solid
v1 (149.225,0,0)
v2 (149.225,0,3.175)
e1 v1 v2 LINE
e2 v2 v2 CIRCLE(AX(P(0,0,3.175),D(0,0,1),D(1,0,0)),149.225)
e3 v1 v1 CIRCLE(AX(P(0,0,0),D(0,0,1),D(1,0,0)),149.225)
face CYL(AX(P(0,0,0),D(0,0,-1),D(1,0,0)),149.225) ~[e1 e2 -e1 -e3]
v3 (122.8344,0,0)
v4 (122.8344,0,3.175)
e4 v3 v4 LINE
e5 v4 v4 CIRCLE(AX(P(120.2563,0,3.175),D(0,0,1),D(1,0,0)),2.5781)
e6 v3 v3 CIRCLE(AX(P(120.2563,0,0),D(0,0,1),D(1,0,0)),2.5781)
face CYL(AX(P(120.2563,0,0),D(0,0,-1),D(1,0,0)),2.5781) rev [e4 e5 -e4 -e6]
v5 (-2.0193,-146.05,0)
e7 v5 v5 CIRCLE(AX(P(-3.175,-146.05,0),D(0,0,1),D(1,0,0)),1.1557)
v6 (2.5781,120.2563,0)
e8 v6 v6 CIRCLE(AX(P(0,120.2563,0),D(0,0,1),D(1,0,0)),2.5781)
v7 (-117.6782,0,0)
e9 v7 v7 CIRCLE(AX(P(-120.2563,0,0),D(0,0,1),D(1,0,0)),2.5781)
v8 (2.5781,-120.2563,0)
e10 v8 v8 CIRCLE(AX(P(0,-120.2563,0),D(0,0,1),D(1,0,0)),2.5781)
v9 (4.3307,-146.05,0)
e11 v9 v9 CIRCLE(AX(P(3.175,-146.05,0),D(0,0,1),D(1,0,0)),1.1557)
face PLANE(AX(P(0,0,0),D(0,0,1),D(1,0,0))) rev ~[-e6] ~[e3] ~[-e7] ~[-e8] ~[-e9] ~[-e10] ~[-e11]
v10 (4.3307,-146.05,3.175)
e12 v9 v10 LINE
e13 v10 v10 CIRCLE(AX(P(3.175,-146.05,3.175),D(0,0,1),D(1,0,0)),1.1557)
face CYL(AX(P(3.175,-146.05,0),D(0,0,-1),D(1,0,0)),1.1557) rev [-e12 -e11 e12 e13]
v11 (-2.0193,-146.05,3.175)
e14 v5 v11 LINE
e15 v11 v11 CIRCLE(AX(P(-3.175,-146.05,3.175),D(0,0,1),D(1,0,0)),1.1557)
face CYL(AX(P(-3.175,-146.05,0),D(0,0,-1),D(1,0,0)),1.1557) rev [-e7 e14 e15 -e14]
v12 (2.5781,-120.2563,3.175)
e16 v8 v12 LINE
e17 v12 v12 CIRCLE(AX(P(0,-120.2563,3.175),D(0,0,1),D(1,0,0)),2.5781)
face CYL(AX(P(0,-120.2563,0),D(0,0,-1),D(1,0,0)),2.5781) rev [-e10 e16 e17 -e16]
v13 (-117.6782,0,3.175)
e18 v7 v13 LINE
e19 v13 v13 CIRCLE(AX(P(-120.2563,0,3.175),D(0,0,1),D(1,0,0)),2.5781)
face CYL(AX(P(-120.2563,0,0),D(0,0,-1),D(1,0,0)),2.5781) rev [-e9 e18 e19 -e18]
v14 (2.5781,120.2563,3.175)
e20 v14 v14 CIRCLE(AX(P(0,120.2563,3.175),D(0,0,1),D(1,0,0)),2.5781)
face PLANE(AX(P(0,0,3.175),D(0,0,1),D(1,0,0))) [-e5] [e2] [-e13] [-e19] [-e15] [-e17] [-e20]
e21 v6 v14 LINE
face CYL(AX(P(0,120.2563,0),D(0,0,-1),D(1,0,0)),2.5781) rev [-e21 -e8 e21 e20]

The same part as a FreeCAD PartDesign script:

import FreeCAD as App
import Part
import Sketcher
Q = App.Units.Quantity

doc = App.newDocument("Part")
params = doc.addObject("Spreadsheet::Sheet", "Params")
for row, (alias, value) in enumerate([
    ("sketch1_diameter", "11.75 in"),
    ("sketch1_diameter2", "0.203 in"),
    ("pad1_length", "0.125 in"),
    ("sketch2_diameter", "0.091 in"),
    ("pocket1_length", "0.125 in"),
], start=1):
    params.set(f"A{row}", alias)
    params.set(f"B{row}", "=" + value)
    params.setAlias(f"B{row}", alias)

body = doc.addObject("PartDesign::Body", "Body")

# Sketch on XY plane
sketch1 = body.newObject("Sketcher::SketchObject", "Sketch")
sketch1.AttachmentSupport = (doc.getObject("XY_Plane"), [""])
sketch1.MapMode = "FlatFace"
sketch1.addGeometry([
    Part.Circle(App.Vector(0, 0, 0), App.Vector(0, 0, 1), 149.2),  # 0
    Part.Circle(App.Vector(0, -120.3, 0), App.Vector(0, 0, 1), 2.6),  # 1
    Part.Circle(App.Vector(-120.3, 0, 0), App.Vector(0, 0, 1), 2.6),  # 2
    Part.Circle(App.Vector(120.3, 0, 0), App.Vector(0, 0, 1), 2.6),  # 3
    Part.Circle(App.Vector(0, 120.3, 0), App.Vector(0, 0, 1), 2.6),  # 4
], False)
sketch1.addConstraint([
    Sketcher.Constraint("Coincident", 0, 3, -1, 1),
    Sketcher.Constraint("Equal", 1, 2),
    Sketcher.Constraint("Equal", 2, 3),
    Sketcher.Constraint("Equal", 3, 4),
    Sketcher.Constraint("Symmetric", 2, 3, 3, 3, -1, 1),
    Sketcher.Constraint("Symmetric", 1, 3, 4, 3, -1, 1),
    Sketcher.Constraint("PointOnObject", 1, 3, -2),
    Sketcher.Constraint("PointOnObject", 2, 3, -1),
    Sketcher.Constraint("Diameter", 0, Q("11.75 in")),
    Sketcher.Constraint("Diameter", 1, Q("0.203 in")),
    Sketcher.Constraint("DistanceX", 2, 3, 3, 3, Q("9.469 in")),
    Sketcher.Constraint("DistanceY", 1, 3, 4, 3, Q("9.469 in")),
])
sketch1.setExpression("Constraints[8]", "Params.sketch1_diameter")
sketch1.setExpression("Constraints[9]", "Params.sketch1_diameter2")
pad1 = body.newObject("PartDesign::Pad", "Pad")
pad1.Profile = sketch1
pad1.setExpression("Length", "Params.pad1_length")

# Sketch on XY plane
sketch2 = body.newObject("Sketcher::SketchObject", "Sketch001")
sketch2.AttachmentSupport = (doc.getObject("XY_Plane"), [""])
sketch2.MapMode = "FlatFace"
sketch2.addGeometry([
    Part.Circle(App.Vector(3.2, -146.1, 0), App.Vector(0, 0, 1), 1.2),
    Part.Circle(App.Vector(-3.2, -146.1, 0), App.Vector(0, 0, 1), 1.2),
], False)
sketch2.addConstraint([
    Sketcher.Constraint("Equal", 0, 1),
    Sketcher.Constraint("Symmetric", 0, 3, 1, 3, -2),
    Sketcher.Constraint("Diameter", 0, Q("0.091 in")),
    Sketcher.Constraint("DistanceY", 0, 3, -1, 1, Q("5.75 in")),
    Sketcher.Constraint("DistanceX", -1, 1, 0, 3, Q("0.125 in")),
])
sketch2.setExpression("Constraints[2]", "Params.sketch2_diameter")
pocket1 = body.newObject("PartDesign::Pocket", "Pocket")
pocket1.Profile = sketch2
pocket1.setExpression("Length", "Params.pocket1_length")
pocket1.Reversed = True

doc.recompute()
